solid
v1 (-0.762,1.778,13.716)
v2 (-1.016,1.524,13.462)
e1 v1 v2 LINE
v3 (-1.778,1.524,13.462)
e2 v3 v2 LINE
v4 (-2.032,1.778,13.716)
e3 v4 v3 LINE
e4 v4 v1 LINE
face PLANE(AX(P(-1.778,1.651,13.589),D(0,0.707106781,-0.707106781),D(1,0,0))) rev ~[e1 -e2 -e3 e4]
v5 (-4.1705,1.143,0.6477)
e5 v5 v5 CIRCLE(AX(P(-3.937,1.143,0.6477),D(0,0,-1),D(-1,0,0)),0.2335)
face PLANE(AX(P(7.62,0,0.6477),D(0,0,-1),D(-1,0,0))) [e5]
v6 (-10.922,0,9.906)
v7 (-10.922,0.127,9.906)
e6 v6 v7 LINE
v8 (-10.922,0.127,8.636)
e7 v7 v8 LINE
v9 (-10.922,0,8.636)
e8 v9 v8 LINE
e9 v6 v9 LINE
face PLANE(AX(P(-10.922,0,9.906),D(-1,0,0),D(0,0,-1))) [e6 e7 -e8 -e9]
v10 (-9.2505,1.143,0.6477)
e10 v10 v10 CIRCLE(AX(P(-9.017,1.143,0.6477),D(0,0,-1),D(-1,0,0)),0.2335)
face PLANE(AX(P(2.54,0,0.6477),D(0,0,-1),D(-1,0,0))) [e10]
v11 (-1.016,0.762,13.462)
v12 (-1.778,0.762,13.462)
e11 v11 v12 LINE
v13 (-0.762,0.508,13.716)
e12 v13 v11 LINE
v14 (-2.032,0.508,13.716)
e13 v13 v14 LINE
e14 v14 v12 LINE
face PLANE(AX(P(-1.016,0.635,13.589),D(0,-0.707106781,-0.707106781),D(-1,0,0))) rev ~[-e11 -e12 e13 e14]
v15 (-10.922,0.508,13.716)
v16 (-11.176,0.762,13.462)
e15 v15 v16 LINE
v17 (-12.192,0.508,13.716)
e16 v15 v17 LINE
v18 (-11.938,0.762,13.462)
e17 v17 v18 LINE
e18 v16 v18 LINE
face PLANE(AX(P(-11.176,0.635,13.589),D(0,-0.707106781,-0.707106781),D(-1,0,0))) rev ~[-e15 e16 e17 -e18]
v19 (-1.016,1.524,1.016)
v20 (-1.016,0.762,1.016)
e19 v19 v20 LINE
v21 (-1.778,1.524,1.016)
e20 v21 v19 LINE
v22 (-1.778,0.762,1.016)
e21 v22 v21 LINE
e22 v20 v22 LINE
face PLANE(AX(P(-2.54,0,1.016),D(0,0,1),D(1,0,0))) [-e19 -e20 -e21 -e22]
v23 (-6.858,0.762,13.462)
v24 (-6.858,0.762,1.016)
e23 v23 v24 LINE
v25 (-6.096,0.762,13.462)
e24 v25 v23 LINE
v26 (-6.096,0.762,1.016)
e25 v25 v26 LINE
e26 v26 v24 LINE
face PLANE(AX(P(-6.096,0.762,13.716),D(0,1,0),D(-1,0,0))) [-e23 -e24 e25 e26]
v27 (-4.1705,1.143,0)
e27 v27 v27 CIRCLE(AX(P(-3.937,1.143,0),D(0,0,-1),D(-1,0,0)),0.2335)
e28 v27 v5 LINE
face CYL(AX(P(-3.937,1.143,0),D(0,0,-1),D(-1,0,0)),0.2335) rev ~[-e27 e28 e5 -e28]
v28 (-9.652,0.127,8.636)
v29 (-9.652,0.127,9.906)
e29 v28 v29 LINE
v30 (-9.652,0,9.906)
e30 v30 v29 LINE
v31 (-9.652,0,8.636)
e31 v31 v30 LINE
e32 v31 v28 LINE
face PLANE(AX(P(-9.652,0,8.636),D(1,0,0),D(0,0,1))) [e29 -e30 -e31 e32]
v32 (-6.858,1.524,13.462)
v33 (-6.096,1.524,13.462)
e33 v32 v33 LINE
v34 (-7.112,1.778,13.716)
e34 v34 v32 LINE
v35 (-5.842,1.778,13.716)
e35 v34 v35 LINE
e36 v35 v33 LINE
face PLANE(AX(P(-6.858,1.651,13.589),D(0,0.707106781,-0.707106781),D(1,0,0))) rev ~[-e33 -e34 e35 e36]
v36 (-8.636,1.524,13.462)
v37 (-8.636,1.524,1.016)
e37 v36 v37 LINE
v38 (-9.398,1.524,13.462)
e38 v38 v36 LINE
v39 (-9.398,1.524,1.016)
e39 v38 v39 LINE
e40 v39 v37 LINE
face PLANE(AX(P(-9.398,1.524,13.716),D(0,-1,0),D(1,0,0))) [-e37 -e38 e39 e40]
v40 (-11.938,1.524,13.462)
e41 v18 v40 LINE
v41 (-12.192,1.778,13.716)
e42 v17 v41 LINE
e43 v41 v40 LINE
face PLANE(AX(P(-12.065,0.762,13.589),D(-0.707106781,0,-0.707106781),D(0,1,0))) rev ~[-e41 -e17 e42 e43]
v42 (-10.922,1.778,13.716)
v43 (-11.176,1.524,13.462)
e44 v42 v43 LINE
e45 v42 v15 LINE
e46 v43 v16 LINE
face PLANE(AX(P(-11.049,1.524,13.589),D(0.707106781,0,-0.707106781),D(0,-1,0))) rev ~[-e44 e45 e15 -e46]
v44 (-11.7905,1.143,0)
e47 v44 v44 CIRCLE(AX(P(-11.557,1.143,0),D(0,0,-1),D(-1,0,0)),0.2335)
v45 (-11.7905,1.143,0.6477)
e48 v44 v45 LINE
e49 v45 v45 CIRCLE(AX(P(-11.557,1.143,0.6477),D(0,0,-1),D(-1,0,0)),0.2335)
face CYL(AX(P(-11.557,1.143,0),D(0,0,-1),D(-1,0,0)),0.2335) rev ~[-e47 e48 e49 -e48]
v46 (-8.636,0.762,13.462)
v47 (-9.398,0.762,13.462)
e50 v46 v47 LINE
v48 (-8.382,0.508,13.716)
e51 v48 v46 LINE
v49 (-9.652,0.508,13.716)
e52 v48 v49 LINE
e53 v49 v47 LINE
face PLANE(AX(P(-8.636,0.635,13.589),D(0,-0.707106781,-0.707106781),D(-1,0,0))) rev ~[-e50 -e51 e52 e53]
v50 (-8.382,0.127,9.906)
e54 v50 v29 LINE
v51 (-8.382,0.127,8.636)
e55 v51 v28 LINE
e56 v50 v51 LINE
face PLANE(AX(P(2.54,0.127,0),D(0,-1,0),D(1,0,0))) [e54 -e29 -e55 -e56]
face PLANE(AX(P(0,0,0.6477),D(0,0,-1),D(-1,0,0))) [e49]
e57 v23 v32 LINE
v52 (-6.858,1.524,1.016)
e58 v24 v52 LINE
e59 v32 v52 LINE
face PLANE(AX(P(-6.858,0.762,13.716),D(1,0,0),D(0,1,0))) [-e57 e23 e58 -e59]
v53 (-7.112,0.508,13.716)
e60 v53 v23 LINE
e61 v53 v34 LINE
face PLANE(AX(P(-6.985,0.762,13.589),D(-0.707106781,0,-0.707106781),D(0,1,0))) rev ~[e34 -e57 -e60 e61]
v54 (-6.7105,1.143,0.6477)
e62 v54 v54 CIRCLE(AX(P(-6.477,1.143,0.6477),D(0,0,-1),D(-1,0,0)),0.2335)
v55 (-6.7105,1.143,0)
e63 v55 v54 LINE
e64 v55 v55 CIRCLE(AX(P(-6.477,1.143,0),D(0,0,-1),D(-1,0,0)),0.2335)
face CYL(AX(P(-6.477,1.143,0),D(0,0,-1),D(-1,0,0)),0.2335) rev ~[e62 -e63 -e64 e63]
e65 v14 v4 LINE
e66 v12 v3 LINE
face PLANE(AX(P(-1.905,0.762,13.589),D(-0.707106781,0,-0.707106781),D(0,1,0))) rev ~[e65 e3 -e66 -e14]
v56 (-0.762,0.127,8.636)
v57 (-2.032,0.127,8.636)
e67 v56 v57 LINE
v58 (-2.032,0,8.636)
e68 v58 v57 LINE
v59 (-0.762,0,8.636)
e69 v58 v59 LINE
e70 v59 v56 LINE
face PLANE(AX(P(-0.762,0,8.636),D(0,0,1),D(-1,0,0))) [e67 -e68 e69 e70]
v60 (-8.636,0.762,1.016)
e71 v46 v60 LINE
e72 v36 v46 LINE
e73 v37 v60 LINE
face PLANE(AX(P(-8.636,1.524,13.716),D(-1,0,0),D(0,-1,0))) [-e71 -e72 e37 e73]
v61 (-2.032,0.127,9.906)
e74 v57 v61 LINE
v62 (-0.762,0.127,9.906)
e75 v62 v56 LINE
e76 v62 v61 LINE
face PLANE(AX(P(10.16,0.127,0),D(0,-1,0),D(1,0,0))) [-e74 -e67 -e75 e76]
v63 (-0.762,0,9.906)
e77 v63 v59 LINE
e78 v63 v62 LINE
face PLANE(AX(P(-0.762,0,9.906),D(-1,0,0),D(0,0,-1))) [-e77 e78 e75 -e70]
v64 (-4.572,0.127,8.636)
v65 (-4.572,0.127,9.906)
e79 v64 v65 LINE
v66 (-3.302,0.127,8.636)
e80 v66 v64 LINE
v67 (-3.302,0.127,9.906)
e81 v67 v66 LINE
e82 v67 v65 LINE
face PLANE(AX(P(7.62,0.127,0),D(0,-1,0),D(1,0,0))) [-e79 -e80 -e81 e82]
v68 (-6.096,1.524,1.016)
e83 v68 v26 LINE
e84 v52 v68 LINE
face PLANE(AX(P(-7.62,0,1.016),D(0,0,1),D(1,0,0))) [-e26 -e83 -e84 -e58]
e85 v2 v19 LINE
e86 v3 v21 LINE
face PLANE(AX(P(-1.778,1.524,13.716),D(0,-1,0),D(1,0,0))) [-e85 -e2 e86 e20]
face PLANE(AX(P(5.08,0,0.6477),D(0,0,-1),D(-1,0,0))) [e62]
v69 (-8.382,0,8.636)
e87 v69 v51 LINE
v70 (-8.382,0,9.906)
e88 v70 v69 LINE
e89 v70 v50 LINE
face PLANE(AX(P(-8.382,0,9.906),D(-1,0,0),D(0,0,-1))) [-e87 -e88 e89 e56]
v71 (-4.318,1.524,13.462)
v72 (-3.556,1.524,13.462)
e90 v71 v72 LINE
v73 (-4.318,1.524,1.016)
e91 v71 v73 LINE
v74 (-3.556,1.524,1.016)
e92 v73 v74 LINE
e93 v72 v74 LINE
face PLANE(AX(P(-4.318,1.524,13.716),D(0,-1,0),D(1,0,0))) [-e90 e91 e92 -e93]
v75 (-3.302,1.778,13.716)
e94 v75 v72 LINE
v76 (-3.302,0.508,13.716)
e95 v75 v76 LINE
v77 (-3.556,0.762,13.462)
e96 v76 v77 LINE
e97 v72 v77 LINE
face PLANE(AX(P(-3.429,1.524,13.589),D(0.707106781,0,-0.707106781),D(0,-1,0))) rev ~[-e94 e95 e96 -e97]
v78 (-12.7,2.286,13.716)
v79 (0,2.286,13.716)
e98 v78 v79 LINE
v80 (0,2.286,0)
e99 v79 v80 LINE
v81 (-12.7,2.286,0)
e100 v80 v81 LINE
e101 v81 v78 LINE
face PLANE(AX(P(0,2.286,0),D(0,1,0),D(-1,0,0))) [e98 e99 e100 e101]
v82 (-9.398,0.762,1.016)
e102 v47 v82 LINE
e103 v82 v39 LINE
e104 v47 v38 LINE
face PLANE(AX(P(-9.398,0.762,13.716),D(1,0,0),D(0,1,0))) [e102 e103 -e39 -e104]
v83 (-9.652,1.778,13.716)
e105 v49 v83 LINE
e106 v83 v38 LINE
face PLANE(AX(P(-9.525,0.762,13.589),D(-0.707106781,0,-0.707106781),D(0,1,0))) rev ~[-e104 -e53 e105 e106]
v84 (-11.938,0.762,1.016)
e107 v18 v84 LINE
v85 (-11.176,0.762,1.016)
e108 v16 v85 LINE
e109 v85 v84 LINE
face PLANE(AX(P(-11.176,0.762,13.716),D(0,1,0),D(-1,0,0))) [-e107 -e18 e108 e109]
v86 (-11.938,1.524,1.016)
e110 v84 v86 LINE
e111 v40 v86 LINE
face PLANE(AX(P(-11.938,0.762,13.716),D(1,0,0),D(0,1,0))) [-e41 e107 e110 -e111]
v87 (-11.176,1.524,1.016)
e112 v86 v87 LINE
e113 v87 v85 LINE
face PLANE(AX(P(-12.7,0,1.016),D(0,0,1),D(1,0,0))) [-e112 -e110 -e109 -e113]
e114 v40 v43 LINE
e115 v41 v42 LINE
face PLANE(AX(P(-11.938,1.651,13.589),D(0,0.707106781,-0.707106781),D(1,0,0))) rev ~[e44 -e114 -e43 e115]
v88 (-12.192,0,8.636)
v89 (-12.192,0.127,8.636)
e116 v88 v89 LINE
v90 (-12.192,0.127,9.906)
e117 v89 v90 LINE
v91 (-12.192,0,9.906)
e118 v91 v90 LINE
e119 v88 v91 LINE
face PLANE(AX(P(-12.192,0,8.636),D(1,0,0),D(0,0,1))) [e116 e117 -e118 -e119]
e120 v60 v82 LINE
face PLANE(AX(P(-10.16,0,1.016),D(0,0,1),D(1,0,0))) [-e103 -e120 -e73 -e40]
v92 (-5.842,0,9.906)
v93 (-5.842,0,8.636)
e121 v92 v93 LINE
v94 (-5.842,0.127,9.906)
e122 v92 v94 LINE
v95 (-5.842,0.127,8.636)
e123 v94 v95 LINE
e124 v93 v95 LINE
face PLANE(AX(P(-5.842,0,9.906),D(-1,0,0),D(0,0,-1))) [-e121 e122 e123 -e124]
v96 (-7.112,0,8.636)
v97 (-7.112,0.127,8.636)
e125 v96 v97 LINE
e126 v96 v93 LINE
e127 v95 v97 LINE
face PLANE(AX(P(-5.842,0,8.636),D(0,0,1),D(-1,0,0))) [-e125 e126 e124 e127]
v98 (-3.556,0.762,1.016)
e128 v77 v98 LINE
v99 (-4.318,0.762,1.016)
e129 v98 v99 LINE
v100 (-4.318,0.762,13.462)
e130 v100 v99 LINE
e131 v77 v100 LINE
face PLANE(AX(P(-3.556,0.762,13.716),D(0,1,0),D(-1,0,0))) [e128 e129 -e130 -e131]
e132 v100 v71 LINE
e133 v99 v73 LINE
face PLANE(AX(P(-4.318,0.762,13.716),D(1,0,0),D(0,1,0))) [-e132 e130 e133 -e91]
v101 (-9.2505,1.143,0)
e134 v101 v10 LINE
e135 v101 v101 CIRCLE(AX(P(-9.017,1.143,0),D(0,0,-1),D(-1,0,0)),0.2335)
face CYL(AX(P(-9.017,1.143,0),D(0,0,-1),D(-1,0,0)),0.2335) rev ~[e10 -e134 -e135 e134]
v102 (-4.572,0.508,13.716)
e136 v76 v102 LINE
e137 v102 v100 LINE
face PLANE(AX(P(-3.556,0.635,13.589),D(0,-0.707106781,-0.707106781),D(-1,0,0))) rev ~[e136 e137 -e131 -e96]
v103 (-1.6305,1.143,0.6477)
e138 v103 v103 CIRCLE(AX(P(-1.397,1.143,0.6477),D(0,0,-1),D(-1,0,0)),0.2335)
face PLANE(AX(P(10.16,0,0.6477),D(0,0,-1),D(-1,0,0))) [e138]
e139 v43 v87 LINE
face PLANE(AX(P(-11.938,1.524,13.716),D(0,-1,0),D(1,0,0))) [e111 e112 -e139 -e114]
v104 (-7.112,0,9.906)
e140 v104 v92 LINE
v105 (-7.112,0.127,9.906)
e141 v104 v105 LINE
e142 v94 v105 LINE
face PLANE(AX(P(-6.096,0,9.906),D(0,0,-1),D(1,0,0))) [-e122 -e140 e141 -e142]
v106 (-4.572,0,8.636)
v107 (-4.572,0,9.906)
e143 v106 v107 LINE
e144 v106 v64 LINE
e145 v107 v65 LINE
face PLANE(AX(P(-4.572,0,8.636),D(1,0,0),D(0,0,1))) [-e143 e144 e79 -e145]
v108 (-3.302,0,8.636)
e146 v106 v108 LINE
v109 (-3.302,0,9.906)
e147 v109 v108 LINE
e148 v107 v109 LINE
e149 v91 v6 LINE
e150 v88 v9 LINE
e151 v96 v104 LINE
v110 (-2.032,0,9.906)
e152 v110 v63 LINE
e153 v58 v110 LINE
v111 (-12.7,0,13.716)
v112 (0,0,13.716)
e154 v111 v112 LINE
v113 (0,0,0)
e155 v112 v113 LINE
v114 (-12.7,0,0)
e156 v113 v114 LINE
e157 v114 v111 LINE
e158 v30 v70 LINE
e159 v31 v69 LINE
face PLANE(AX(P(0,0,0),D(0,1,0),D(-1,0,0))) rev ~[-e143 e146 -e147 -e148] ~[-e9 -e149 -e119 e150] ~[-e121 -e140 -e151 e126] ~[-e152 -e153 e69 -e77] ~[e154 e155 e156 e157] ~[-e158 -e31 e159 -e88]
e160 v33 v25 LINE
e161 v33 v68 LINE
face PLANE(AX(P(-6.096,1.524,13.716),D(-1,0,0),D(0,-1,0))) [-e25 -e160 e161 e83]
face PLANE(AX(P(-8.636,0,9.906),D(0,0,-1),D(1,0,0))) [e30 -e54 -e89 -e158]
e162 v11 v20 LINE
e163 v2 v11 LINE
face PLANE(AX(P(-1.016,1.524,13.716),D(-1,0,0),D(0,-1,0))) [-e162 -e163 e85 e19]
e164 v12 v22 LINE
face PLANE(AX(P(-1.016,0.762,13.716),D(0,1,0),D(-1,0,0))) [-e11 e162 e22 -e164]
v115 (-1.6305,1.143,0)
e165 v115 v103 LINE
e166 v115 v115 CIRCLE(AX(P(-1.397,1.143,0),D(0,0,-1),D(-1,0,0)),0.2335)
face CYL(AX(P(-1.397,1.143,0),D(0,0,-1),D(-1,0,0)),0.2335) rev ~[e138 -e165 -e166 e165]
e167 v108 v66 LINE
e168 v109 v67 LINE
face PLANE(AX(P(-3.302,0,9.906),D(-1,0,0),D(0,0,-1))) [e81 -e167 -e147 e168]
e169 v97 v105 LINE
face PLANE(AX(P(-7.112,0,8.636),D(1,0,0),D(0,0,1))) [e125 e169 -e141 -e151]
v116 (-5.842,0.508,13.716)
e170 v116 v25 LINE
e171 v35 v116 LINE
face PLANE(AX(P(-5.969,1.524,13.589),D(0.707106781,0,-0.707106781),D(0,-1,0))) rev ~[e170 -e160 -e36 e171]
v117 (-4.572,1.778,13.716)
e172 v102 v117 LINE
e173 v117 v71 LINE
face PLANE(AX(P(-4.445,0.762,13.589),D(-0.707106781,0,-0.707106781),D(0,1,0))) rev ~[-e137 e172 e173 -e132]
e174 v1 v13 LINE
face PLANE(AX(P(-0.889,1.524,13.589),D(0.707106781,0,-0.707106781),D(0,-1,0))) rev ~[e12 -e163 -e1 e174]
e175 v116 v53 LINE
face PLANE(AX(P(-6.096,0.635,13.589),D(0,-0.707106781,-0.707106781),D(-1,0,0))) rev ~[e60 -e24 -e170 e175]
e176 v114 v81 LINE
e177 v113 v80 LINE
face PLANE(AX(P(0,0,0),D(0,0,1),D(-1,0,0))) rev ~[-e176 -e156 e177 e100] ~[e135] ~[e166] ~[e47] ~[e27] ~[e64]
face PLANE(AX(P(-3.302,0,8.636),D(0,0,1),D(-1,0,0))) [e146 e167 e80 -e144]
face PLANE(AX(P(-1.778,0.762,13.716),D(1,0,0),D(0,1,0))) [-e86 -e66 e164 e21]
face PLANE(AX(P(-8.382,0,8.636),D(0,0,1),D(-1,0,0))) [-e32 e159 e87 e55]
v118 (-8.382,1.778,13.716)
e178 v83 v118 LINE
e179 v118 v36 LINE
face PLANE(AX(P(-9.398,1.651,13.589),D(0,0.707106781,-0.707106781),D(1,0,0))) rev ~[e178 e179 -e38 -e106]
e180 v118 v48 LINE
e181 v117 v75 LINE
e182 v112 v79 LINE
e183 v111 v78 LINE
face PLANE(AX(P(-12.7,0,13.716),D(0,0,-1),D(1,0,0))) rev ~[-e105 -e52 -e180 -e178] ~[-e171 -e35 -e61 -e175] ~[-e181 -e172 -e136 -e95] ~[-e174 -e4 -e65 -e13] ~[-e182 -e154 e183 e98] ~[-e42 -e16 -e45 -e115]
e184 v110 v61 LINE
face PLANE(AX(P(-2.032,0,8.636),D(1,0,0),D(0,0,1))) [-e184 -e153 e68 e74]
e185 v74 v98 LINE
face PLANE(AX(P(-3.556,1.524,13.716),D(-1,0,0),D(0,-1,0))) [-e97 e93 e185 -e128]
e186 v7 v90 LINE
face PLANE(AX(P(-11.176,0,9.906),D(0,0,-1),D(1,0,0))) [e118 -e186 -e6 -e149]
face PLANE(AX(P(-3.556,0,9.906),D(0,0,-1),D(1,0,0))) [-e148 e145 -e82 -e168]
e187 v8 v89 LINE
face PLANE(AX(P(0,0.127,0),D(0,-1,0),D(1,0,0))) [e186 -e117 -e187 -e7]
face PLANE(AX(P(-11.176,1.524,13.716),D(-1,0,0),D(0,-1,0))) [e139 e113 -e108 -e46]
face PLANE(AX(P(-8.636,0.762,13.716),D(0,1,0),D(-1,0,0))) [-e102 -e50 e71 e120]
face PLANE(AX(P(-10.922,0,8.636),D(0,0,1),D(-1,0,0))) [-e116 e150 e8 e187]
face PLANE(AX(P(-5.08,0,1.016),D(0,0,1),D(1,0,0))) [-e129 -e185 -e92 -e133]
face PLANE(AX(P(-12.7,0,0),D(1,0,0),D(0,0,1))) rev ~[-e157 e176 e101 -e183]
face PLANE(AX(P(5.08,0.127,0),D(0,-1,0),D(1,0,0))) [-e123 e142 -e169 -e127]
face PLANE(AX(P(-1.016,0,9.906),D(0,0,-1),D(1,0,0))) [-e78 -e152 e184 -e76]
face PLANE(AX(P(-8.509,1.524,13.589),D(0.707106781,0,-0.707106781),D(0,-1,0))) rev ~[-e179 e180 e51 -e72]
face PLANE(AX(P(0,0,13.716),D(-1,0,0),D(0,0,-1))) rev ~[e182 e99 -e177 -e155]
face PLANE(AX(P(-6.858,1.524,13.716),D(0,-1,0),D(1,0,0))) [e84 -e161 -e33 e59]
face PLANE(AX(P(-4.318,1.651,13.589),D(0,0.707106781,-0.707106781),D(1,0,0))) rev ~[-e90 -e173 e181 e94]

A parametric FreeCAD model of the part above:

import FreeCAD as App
import Part
import Sketcher
from FreeCAD import Vector
Q = App.Units.Quantity


def edges_at(feature, points):
    """Names of the edges that pass closest to the given points."""
    edges = feature.Shape.Edges
    near = lambda p: min(range(len(edges)), key=lambda i: edges[i].distToShape(Part.Vertex(*p))[0])
    return sorted({f"Edge{near(p) + 1}" for p in points})

doc = App.newDocument("Part")
params = doc.addObject("Spreadsheet::Sheet", "Params")
for row, (alias, value) in enumerate([
    ("sketch1_width", "0.5 in"),
    ("sketch1_height", "0.54 in"),
    ("pad1_length", "0.09 in"),
    ("sketch2_width", "0.03 in"),
    ("pocket1_length", "0.5 in"),
    ("chamfer_size", "0.01 in"),
    ("pocket2_length", "0.0255 in"),
    ("sketch4_width", "0.05 in"),
    ("pocket3_length", "0.005 in"),
    ("linearpattern_pitch", "0.1 in"),
], start=1):
    params.set(f"A{row}", alias)
    params.set(f"B{row}", "=" + value)
    params.setAlias(f"B{row}", alias)

body = doc.addObject("PartDesign::Body", "Body")

sketch1 = doc.addObject("Sketcher::SketchObject", "Sketch")
body.addObject(sketch1)
sketch1.AttachmentSupport = (doc.XZ_Plane, [""])
sketch1.MapMode = "FlatFace"
sketch1.addGeometry(Part.LineSegment(Vector(0, 14, 0), Vector(0, 0, 0)), False)
sketch1.addGeometry(Part.LineSegment(Vector(0, 0, 0), Vector(-13, 0, 0)), False)
sketch1.addGeometry(Part.LineSegment(Vector(-13, 0, 0), Vector(-13, 14, 0)), False)
sketch1.addGeometry(Part.LineSegment(Vector(-13, 14, 0), Vector(0, 14, 0)), False)
sketch1.addConstraint(Sketcher.Constraint("Coincident", 0, 2, 1, 1))
sketch1.addConstraint(Sketcher.Constraint("Coincident", 1, 2, 2, 1))
sketch1.addConstraint(Sketcher.Constraint("Coincident", 2, 2, 3, 1))
sketch1.addConstraint(Sketcher.Constraint("Coincident", 3, 2, 0, 1))
sketch1.addConstraint(Sketcher.Constraint("Vertical", 0))
sketch1.addConstraint(Sketcher.Constraint("Horizontal", 1))
sketch1.addConstraint(Sketcher.Constraint("Vertical", 2))
sketch1.addConstraint(Sketcher.Constraint("Horizontal", 3))
sketch1.addConstraint(Sketcher.Constraint("Coincident", 0, 2, -1, 1))
sketch1.addConstraint(Sketcher.Constraint("DistanceX", 1, 2, 1, 1, Q("0.5 in")))
sketch1.addConstraint(Sketcher.Constraint("DistanceY", 0, 2, 0, 1, Q("0.54 in")))
sketch1.setExpression("Constraints[9]", "Params.sketch1_width")
sketch1.setExpression("Constraints[10]", "Params.sketch1_height")
pad1 = doc.addObject("PartDesign::Pad", "Pad")
body.addObject(pad1)
pad1.Profile = sketch1
pad1.setExpression("Length", "Params.pad1_length")
pad1.Reversed = True

sketch2 = doc.addObject("Sketcher::SketchObject", "Sketch001")
body.addObject(sketch2)
sketch2.AttachmentSupport = (doc.XY_Plane, [""])
sketch2.MapMode = "FlatFace"
sketch2.AttachmentOffset = App.Placement(Vector(0, 0, 0.54 * 25.4), App.Rotation())
sketch2.addGeometry(Part.LineSegment(Vector(-11.2, 1.5, 0), Vector(-11.9, 1.5, 0)), False)
sketch2.addGeometry(Part.LineSegment(Vector(-11.9, 1.5, 0), Vector(-11.9, 0.8, 0)), False)
sketch2.addGeometry(Part.LineSegment(Vector(-11.9, 0.8, 0), Vector(-11.2, 0.8, 0)), False)
sketch2.addGeometry(Part.LineSegment(Vector(-11.2, 0.8, 0), Vector(-11.2, 1.5, 0)), False)
sketch2.addConstraint(Sketcher.Constraint("Coincident", 0, 2, 1, 1))
sketch2.addConstraint(Sketcher.Constraint("Coincident", 1, 2, 2, 1))
sketch2.addConstraint(Sketcher.Constraint("Coincident", 2, 2, 3, 1))
sketch2.addConstraint(Sketcher.Constraint("Coincident", 3, 2, 0, 1))
sketch2.addConstraint(Sketcher.Constraint("Horizontal", 0))
sketch2.addConstraint(Sketcher.Constraint("Vertical", 1))
sketch2.addConstraint(Sketcher.Constraint("Horizontal", 2))
sketch2.addConstraint(Sketcher.Constraint("Vertical", 3))
sketch2.addConstraint(Sketcher.Constraint("Equal", 2, 1))
sketch2.addConstraint(Sketcher.Constraint("DistanceX", 0, 2, 0, 1, Q("0.03 in")))
sketch2.addConstraint(Sketcher.Constraint("DistanceY", -1, 1, 1, 2, Q("0.03 in")))
sketch2.addConstraint(Sketcher.Constraint("DistanceX", 0, 2, -1, 1, Q("0.47 in")))
sketch2.setExpression("Constraints[9]", "Params.sketch2_width")
pocket1 = doc.addObject("PartDesign::Pocket", "Pocket")
body.addObject(pocket1)
pocket1.Profile = sketch2
pocket1.setExpression("Length", "Params.pocket1_length")
doc.recompute()

chamfer = doc.addObject("PartDesign::Chamfer", "Chamfer")
body.addObject(chamfer)
chamfer.Base = (pocket1, edges_at(pocket1, [
    (-11.938, 1.143, 13.716),
    (-11.557, 1.524, 13.716),
    (-11.176, 1.143, 13.716),
    (-11.557, 0.762, 13.716),
]))
chamfer.setExpression("Size", "Params.chamfer_size")

sketch3 = doc.addObject("Sketcher::SketchObject", "Sketch002")
body.addObject(sketch3)
sketch3.AttachmentSupport = (doc.XY_Plane, [""])
sketch3.MapMode = "FlatFace"
sketch3.addGeometry(Part.Circle(Vector(-11.56, 1.14, 0), Vector(0, 0, 1), 0.23), False)
sketch3.addConstraint(Sketcher.Constraint("Diameter", 0, 0.467))
sketch3.addConstraint(Sketcher.Constraint("DistanceX", 0, 3, -1, 1, Q("0.455 in")))
sketch3.addConstraint(Sketcher.Constraint("DistanceY", -1, 1, 0, 3, Q("0.045 in")))
pocket2 = doc.addObject("PartDesign::Pocket", "Pocket001")
body.addObject(pocket2)
pocket2.Profile = sketch3
pocket2.setExpression("Length", "Params.pocket2_length")
pocket2.Reversed = True

sketch4 = doc.addObject("Sketcher::SketchObject", "Sketch003")
body.addObject(sketch4)
sketch4.AttachmentSupport = (doc.XZ_Plane, [""])
sketch4.MapMode = "FlatFace"
sketch4.addGeometry(Part.LineSegment(Vector(-10.9, 9.9, 0), Vector(-12.2, 9.9, 0)), False)
sketch4.addGeometry(Part.LineSegment(Vector(-12.2, 9.9, 0), Vector(-12.2, 8.6, 0)), False)
sketch4.addGeometry(Part.LineSegment(Vector(-12.2, 8.6, 0), Vector(-10.9, 8.6, 0)), False)
sketch4.addGeometry(Part.LineSegment(Vector(-10.9, 8.6, 0), Vector(-10.9, 9.9, 0)), False)
sketch4.addConstraint(Sketcher.Constraint("Coincident", 0, 2, 1, 1))
sketch4.addConstraint(Sketcher.Constraint("Coincident", 1, 2, 2, 1))
sketch4.addConstraint(Sketcher.Constraint("Coincident", 2, 2, 3, 1))
sketch4.addConstraint(Sketcher.Constraint("Coincident", 3, 2, 0, 1))
sketch4.addConstraint(Sketcher.Constraint("Horizontal", 0))
sketch4.addConstraint(Sketcher.Constraint("Vertical", 1))
sketch4.addConstraint(Sketcher.Constraint("Horizontal", 2))
sketch4.addConstraint(Sketcher.Constraint("Vertical", 3))
sketch4.addConstraint(Sketcher.Constraint("Equal", 2, 1))
sketch4.addConstraint(Sketcher.Constraint("DistanceX", 0, 2, 0, 1, Q("0.05 in")))
sketch4.addConstraint(Sketcher.Constraint("DistanceX", 0, 2, -1, 1, Q("0.48 in")))
sketch4.addConstraint(Sketcher.Constraint("DistanceY", -1, 1, 0, 2, Q("0.39 in")))
sketch4.setExpression("Constraints[9]", "Params.sketch4_width")
pocket3 = doc.addObject("PartDesign::Pocket", "Pocket002")
body.addObject(pocket3)
pocket3.Profile = sketch4
pocket3.setExpression("Length", "Params.pocket3_length")
doc.recompute()

linearpattern = doc.addObject("PartDesign::LinearPattern", "LinearPattern")
body.addObject(linearpattern)
linearpattern.Originals = [pocket1, chamfer, pocket2, pocket3]
linearpattern.Direction = (doc.X_Axis, [""])
linearpattern.Mode = "offset"
linearpattern.setExpression("Offset", "Params.linearpattern_pitch")
linearpattern.Occurrences = 5
body.Tip = linearpattern

doc.recompute()
